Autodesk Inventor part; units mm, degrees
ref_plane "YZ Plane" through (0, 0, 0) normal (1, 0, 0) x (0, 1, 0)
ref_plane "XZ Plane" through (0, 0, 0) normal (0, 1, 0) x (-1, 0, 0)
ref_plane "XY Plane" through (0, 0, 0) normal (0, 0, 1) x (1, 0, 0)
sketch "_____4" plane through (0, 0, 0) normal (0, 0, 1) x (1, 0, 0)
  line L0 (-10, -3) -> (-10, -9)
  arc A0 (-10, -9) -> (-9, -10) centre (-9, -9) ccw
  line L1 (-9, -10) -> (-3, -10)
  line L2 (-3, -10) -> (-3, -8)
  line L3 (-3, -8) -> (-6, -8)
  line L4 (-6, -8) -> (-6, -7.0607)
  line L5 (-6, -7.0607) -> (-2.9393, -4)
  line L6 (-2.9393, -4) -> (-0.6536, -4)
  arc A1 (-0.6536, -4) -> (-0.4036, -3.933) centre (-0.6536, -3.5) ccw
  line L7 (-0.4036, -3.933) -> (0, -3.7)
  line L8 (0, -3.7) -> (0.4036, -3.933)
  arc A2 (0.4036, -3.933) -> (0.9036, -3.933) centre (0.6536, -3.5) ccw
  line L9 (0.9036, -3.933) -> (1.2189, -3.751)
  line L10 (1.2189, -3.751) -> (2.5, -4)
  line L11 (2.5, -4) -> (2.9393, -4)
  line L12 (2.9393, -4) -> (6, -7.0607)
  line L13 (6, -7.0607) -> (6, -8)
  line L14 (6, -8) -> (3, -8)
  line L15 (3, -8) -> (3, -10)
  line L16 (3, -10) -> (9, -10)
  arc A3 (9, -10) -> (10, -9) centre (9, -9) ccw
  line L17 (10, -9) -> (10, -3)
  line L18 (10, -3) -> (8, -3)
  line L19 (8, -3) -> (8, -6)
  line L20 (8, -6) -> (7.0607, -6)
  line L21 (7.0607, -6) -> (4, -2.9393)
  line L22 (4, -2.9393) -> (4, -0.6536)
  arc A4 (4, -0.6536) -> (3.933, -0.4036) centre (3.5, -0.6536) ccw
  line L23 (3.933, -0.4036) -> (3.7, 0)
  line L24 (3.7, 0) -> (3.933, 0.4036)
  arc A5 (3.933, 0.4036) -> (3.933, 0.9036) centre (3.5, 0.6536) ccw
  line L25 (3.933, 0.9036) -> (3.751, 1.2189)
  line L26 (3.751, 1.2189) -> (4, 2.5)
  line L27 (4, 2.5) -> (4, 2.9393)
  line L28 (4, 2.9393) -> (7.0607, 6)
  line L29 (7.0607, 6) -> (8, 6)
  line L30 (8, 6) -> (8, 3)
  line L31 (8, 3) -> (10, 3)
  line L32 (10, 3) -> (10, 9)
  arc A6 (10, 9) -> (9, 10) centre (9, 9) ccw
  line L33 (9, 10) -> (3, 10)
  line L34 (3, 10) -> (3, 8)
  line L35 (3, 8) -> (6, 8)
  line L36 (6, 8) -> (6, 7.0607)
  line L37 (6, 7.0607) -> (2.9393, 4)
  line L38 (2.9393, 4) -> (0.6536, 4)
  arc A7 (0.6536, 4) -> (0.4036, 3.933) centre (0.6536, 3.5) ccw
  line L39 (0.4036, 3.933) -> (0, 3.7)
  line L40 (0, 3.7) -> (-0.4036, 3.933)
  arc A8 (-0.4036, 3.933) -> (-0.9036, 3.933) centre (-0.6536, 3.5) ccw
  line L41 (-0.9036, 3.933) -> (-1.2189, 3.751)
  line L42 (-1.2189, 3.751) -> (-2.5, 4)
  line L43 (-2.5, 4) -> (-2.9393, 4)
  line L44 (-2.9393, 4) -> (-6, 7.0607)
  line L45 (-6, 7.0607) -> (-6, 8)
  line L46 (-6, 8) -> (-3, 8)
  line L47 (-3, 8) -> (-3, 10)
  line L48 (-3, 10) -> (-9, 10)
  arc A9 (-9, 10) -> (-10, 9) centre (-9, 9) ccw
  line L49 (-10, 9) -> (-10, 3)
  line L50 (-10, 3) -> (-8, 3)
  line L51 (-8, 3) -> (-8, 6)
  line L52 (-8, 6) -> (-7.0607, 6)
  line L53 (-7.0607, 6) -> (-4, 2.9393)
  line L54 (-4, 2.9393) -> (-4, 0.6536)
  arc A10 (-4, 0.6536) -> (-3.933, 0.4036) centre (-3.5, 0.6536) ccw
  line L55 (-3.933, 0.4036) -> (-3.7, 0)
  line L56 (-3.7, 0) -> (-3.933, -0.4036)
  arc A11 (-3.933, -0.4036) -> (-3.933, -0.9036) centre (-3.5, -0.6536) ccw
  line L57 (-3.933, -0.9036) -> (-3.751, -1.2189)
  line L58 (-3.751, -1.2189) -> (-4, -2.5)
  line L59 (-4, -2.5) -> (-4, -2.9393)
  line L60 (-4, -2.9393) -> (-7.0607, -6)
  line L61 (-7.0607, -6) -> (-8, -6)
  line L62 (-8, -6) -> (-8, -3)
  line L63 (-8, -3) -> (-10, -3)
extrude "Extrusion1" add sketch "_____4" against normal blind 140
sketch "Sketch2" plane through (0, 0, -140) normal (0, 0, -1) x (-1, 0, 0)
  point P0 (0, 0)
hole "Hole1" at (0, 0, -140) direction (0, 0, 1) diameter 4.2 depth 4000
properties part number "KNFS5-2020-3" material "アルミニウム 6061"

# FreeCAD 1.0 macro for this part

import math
import FreeCAD as App
import Part
import Sketcher
Q = App.Units.Quantity

doc = App.newDocument("Part")
body = doc.addObject("PartDesign::Body", "Body")

# Sketch on XY plane
sketch1 = body.newObject("Sketcher::SketchObject", "Sketch")
sketch1.AttachmentSupport = (doc.getObject("XY_Plane"), [""])
sketch1.MapMode = "FlatFace"
sketch1.addGeometry([
    Part.LineSegment(App.Vector(-8, -3, 0), App.Vector(-10, -3, 0)),  # 0
    Part.LineSegment(App.Vector(-10, -3, 0), App.Vector(-10, -9, 0)),  # 1
    Part.ArcOfCircle(Part.Circle(App.Vector(-9, -9, 0), App.Vector(0, 0, 1), 1), math.radians(180), math.radians(270)),  # 2
    Part.LineSegment(App.Vector(-9, -10, 0), App.Vector(-3, -10, 0)),  # 3
    Part.LineSegment(App.Vector(-3, -10, 0), App.Vector(-3, -8, 0)),  # 4
    Part.LineSegment(App.Vector(-3, -8, 0), App.Vector(-6, -8, 0)),  # 5
    Part.LineSegment(App.Vector(-6, -8, 0), App.Vector(-6, -7.06, 0)),  # 6
    Part.LineSegment(App.Vector(-6, -7.06, 0), App.Vector(-2.94, -4, 0)),  # 7
    Part.LineSegment(App.Vector(-2.94, -4, 0), App.Vector(-0.65, -4, 0)),  # 8
    Part.ArcOfCircle(Part.Circle(App.Vector(-0.65, -3.5, 0), App.Vector(0, 0, 1), 0.5), math.radians(-90), math.radians(-60)),  # 9
    Part.LineSegment(App.Vector(-0.4, -3.93, 0), App.Vector(0, -3.7, 0)),  # 10
    Part.LineSegment(App.Vector(0, -3.7, 0), App.Vector(0.4, -3.93, 0)),  # 11
    Part.ArcOfCircle(Part.Circle(App.Vector(0.65, -3.5, 0), App.Vector(0, 0, 1), 0.5), math.radians(-120), math.radians(-60)),  # 12
    Part.LineSegment(App.Vector(0.9, -3.93, 0), App.Vector(1.22, -3.75, 0)),  # 13
    Part.LineSegment(App.Vector(1.22, -3.75, 0), App.Vector(2.5, -4, 0)),  # 14
    Part.LineSegment(App.Vector(2.5, -4, 0), App.Vector(2.94, -4, 0)),  # 15
    Part.LineSegment(App.Vector(2.94, -4, 0), App.Vector(6, -7.06, 0)),  # 16
    Part.LineSegment(App.Vector(6, -7.06, 0), App.Vector(6, -8, 0)),  # 17
    Part.LineSegment(App.Vector(6, -8, 0), App.Vector(3, -8, 0)),  # 18
    Part.LineSegment(App.Vector(3, -8, 0), App.Vector(3, -10, 0)),  # 19
    Part.LineSegment(App.Vector(3, -10, 0), App.Vector(9, -10, 0)),  # 20
    Part.ArcOfCircle(Part.Circle(App.Vector(9, -9, 0), App.Vector(0, 0, 1), 1), math.radians(-90), math.radians(0)),  # 21
    Part.LineSegment(App.Vector(10, -9, 0), App.Vector(10, -3, 0)),  # 22
    Part.LineSegment(App.Vector(10, -3, 0), App.Vector(8, -3, 0)),  # 23
    Part.LineSegment(App.Vector(8, -3, 0), App.Vector(8, -6, 0)),  # 24
    Part.LineSegment(App.Vector(8, -6, 0), App.Vector(7.06, -6, 0)),  # 25
    Part.LineSegment(App.Vector(7.06, -6, 0), App.Vector(4, -2.94, 0)),  # 26
    Part.LineSegment(App.Vector(4, -2.94, 0), App.Vector(4, -0.65, 0)),  # 27
    Part.ArcOfCircle(Part.Circle(App.Vector(3.5, -0.65, 0), App.Vector(0, 0, 1), 0.5), math.radians(0), math.radians(30)),  # 28
    Part.LineSegment(App.Vector(3.93, -0.4, 0), App.Vector(3.7, 0, 0)),  # 29
    Part.LineSegment(App.Vector(3.7, 0, 0), App.Vector(3.93, 0.4, 0)),  # 30
    Part.ArcOfCircle(Part.Circle(App.Vector(3.5, 0.65, 0), App.Vector(0, 0, 1), 0.5), math.radians(-30), math.radians(30)),  # 31
    Part.LineSegment(App.Vector(3.93, 0.9, 0), App.Vector(3.75, 1.22, 0)),  # 32
    Part.LineSegment(App.Vector(3.75, 1.22, 0), App.Vector(4, 2.5, 0)),  # 33
    Part.LineSegment(App.Vector(4, 2.5, 0), App.Vector(4, 2.94, 0)),  # 34
    Part.LineSegment(App.Vector(4, 2.94, 0), App.Vector(7.06, 6, 0)),  # 35
    Part.LineSegment(App.Vector(7.06, 6, 0), App.Vector(8, 6, 0)),  # 36
    Part.LineSegment(App.Vector(8, 6, 0), App.Vector(8, 3, 0)),  # 37
    Part.LineSegment(App.Vector(8, 3, 0), App.Vector(10, 3, 0)),  # 38
    Part.LineSegment(App.Vector(10, 3, 0), App.Vector(10, 9, 0)),  # 39
    Part.ArcOfCircle(Part.Circle(App.Vector(9, 9, 0), App.Vector(0, 0, 1), 1), math.radians(0), math.radians(90)),  # 40
    Part.LineSegment(App.Vector(9, 10, 0), App.Vector(3, 10, 0)),  # 41
    Part.LineSegment(App.Vector(3, 10, 0), App.Vector(3, 8, 0)),  # 42
    Part.LineSegment(App.Vector(3, 8, 0), App.Vector(6, 8, 0)),  # 43
    Part.LineSegment(App.Vector(6, 8, 0), App.Vector(6, 7.06, 0)),  # 44
    Part.LineSegment(App.Vector(6, 7.06, 0), App.Vector(2.94, 4, 0)),  # 45
    Part.LineSegment(App.Vector(2.94, 4, 0), App.Vector(0.65, 4, 0)),  # 46
    Part.ArcOfCircle(Part.Circle(App.Vector(0.65, 3.5, 0), App.Vector(0, 0, 1), 0.5), math.radians(90), math.radians(120)),  # 47
    Part.LineSegment(App.Vector(0.4, 3.93, 0), App.Vector(0, 3.7, 0)),  # 48
    Part.LineSegment(App.Vector(0, 3.7, 0), App.Vector(-0.4, 3.93, 0)),  # 49
    Part.ArcOfCircle(Part.Circle(App.Vector(-0.65, 3.5, 0), App.Vector(0, 0, 1), 0.5), math.radians(60), math.radians(120)),  # 50
    Part.LineSegment(App.Vector(-0.9, 3.93, 0), App.Vector(-1.22, 3.75, 0)),  # 51
    Part.LineSegment(App.Vector(-1.22, 3.75, 0), App.Vector(-2.5, 4, 0)),  # 52
    Part.LineSegment(App.Vector(-2.5, 4, 0), App.Vector(-2.94, 4, 0)),  # 53
    Part.LineSegment(App.Vector(-2.94, 4, 0), App.Vector(-6, 7.06, 0)),  # 54
    Part.LineSegment(App.Vector(-6, 7.06, 0), App.Vector(-6, 8, 0)),  # 55
    Part.LineSegment(App.Vector(-6, 8, 0), App.Vector(-3, 8, 0)),  # 56
    Part.LineSegment(App.Vector(-3, 8, 0), App.Vector(-3, 10, 0)),  # 57
    Part.LineSegment(App.Vector(-3, 10, 0), App.Vector(-9, 10, 0)),  # 58
    Part.ArcOfCircle(Part.Circle(App.Vector(-9, 9, 0), App.Vector(0, 0, 1), 1), math.radians(90), math.radians(180)),  # 59
    Part.LineSegment(App.Vector(-10, 9, 0), App.Vector(-10, 3, 0)),  # 60
    Part.LineSegment(App.Vector(-10, 3, 0), App.Vector(-8, 3, 0)),  # 61
    Part.LineSegment(App.Vector(-8, 3, 0), App.Vector(-8, 6, 0)),  # 62
    Part.LineSegment(App.Vector(-8, 6, 0), App.Vector(-7.06, 6, 0)),  # 63
    Part.LineSegment(App.Vector(-7.06, 6, 0), App.Vector(-4, 2.94, 0)),  # 64
    Part.LineSegment(App.Vector(-4, 2.94, 0), App.Vector(-4, 0.65, 0)),  # 65
    Part.ArcOfCircle(Part.Circle(App.Vector(-3.5, 0.65, 0), App.Vector(0, 0, 1), 0.5), math.radians(180), math.radians(210)),  # 66
    Part.LineSegment(App.Vector(-3.93, 0.4, 0), App.Vector(-3.7, 0, 0)),  # 67
    Part.LineSegment(App.Vector(-3.7, 0, 0), App.Vector(-3.93, -0.4, 0)),  # 68
    Part.ArcOfCircle(Part.Circle(App.Vector(-3.5, -0.65, 0), App.Vector(0, 0, 1), 0.5), math.radians(150), math.radians(210)),  # 69
    Part.LineSegment(App.Vector(-3.93, -0.9, 0), App.Vector(-3.75, -1.22, 0)),  # 70
    Part.LineSegment(App.Vector(-3.75, -1.22, 0), App.Vector(-4, -2.5, 0)),  # 71
    Part.LineSegment(App.Vector(-4, -2.5, 0), App.Vector(-4, -2.94, 0)),  # 72
    Part.LineSegment(App.Vector(-4, -2.94, 0), App.Vector(-7.06, -6, 0)),  # 73
    Part.LineSegment(App.Vector(-7.06, -6, 0), App.Vector(-8, -6, 0)),  # 74
    Part.LineSegment(App.Vector(-8, -6, 0), App.Vector(-8, -3, 0)),  # 75
], False)
sketch1.addConstraint([
    Sketcher.Constraint("Coincident", 0, 2, 1, 1),
    Sketcher.Constraint("Tangent", 1, 2, 2, 1),
    Sketcher.Constraint("Tangent", 2, 2, 3, 1),
    Sketcher.Constraint("Coincident", 3, 2, 4, 1),
    Sketcher.Constraint("Coincident", 4, 2, 5, 1),
    Sketcher.Constraint("Coincident", 5, 2, 6, 1),
    Sketcher.Constraint("Coincident", 6, 2, 7, 1),
    Sketcher.Constraint("Coincident", 7, 2, 8, 1),
    Sketcher.Constraint("Tangent", 8, 2, 9, 1),
    Sketcher.Constraint("Tangent", 9, 2, 10, 1),
    Sketcher.Constraint("Coincident", 10, 2, 11, 1),
    Sketcher.Constraint("Tangent", 11, 2, 12, 1),
    Sketcher.Constraint("Tangent", 12, 2, 13, 1),
    Sketcher.Constraint("Coincident", 13, 2, 14, 1),
    Sketcher.Constraint("Coincident", 14, 2, 15, 1),
    Sketcher.Constraint("Coincident", 15, 2, 16, 1),
    Sketcher.Constraint("Coincident", 16, 2, 17, 1),
    Sketcher.Constraint("Coincident", 17, 2, 18, 1),
    Sketcher.Constraint("Coincident", 18, 2, 19, 1),
    Sketcher.Constraint("Coincident", 19, 2, 20, 1),
    Sketcher.Constraint("Tangent", 20, 2, 21, 1),
    Sketcher.Constraint("Tangent", 21, 2, 22, 1),
    Sketcher.Constraint("Coincident", 22, 2, 23, 1),
    Sketcher.Constraint("Coincident", 23, 2, 24, 1),
    Sketcher.Constraint("Coincident", 24, 2, 25, 1),
    Sketcher.Constraint("Coincident", 25, 2, 26, 1),
    Sketcher.Constraint("Coincident", 26, 2, 27, 1),
    Sketcher.Constraint("Tangent", 27, 2, 28, 1),
    Sketcher.Constraint("Tangent", 28, 2, 29, 1),
    Sketcher.Constraint("Coincident", 29, 2, 30, 1),
    Sketcher.Constraint("Tangent", 30, 2, 31, 1),
    Sketcher.Constraint("Tangent", 31, 2, 32, 1),
    Sketcher.Constraint("Coincident", 32, 2, 33, 1),
    Sketcher.Constraint("Coincident", 33, 2, 34, 1),
    Sketcher.Constraint("Coincident", 34, 2, 35, 1),
    Sketcher.Constraint("Coincident", 35, 2, 36, 1),
    Sketcher.Constraint("Coincident", 36, 2, 37, 1),
    Sketcher.Constraint("Coincident", 37, 2, 38, 1),
    Sketcher.Constraint("Coincident", 38, 2, 39, 1),
    Sketcher.Constraint("Tangent", 39, 2, 40, 1),
    Sketcher.Constraint("Tangent", 40, 2, 41, 1),
    Sketcher.Constraint("Coincident", 41, 2, 42, 1),
    Sketcher.Constraint("Coincident", 42, 2, 43, 1),
    Sketcher.Constraint("Coincident", 43, 2, 44, 1),
    Sketcher.Constraint("Coincident", 44, 2, 45, 1),
    Sketcher.Constraint("Coincident", 45, 2, 46, 1),
    Sketcher.Constraint("Tangent", 46, 2, 47, 1),
    Sketcher.Constraint("Tangent", 47, 2, 48, 1),
    Sketcher.Constraint("Coincident", 48, 2, 49, 1),
    Sketcher.Constraint("Tangent", 49, 2, 50, 1),
    Sketcher.Constraint("Tangent", 50, 2, 51, 1),
    Sketcher.Constraint("Coincident", 51, 2, 52, 1),
    Sketcher.Constraint("Coincident", 52, 2, 53, 1),
    Sketcher.Constraint("Coincident", 53, 2, 54, 1),
    Sketcher.Constraint("Coincident", 54, 2, 55, 1),
    Sketcher.Constraint("Coincident", 55, 2, 56, 1),
    Sketcher.Constraint("Coincident", 56, 2, 57, 1),
    Sketcher.Constraint("Coincident", 57, 2, 58, 1),
    Sketcher.Constraint("Tangent", 58, 2, 59, 1),
    Sketcher.Constraint("Tangent", 59, 2, 60, 1),
    Sketcher.Constraint("Coincident", 60, 2, 61, 1),
    Sketcher.Constraint("Coincident", 61, 2, 62, 1),
    Sketcher.Constraint("Coincident", 62, 2, 63, 1),
    Sketcher.Constraint("Coincident", 63, 2, 64, 1),
    Sketcher.Constraint("Coincident", 64, 2, 65, 1),
    Sketcher.Constraint("Tangent", 65, 2, 66, 1),
    Sketcher.Constraint("Tangent", 66, 2, 67, 1),
    Sketcher.Constraint("Coincident", 67, 2, 68, 1),
    Sketcher.Constraint("Tangent", 68, 2, 69, 1),
    Sketcher.Constraint("Tangent", 69, 2, 70, 1),
    Sketcher.Constraint("Coincident", 70, 2, 71, 1),
    Sketcher.Constraint("Coincident", 71, 2, 72, 1),
    Sketcher.Constraint("Coincident", 72, 2, 73, 1),
    Sketcher.Constraint("Coincident", 73, 2, 74, 1),
    Sketcher.Constraint("Coincident", 74, 2, 75, 1),
    Sketcher.Constraint("Coincident", 75, 2, 0, 1),
    Sketcher.Constraint("Horizontal", 0),
    Sketcher.Constraint("Vertical", 1),
    Sketcher.Constraint("Horizontal", 3),
    Sketcher.Constraint("Vertical", 4),
    Sketcher.Constraint("Horizontal", 5),
    Sketcher.Constraint("Vertical", 6),
    Sketcher.Constraint("Horizontal", 8),
    Sketcher.Constraint("Horizontal", 15),
    Sketcher.Constraint("Vertical", 17),
    Sketcher.Constraint("Horizontal", 18),
    Sketcher.Constraint("Vertical", 19),
    Sketcher.Constraint("Horizontal", 20),
    Sketcher.Constraint("Vertical", 22),
    Sketcher.Constraint("Horizontal", 23),
    Sketcher.Constraint("Vertical", 24),
    Sketcher.Constraint("Horizontal", 25),
    Sketcher.Constraint("Vertical", 27),
    Sketcher.Constraint("Vertical", 34),
    Sketcher.Constraint("Horizontal", 36),
    Sketcher.Constraint("Vertical", 37),
    Sketcher.Constraint("Horizontal", 38),
    Sketcher.Constraint("Vertical", 39),
    Sketcher.Constraint("Horizontal", 41),
    Sketcher.Constraint("Vertical", 42),
    Sketcher.Constraint("Horizontal", 43),
    Sketcher.Constraint("Vertical", 44),
    Sketcher.Constraint("Horizontal", 46),
    Sketcher.Constraint("Horizontal", 53),
    Sketcher.Constraint("Vertical", 55),
    Sketcher.Constraint("Horizontal", 56),
    Sketcher.Constraint("Vertical", 57),
    Sketcher.Constraint("Horizontal", 58),
    Sketcher.Constraint("Vertical", 60),
    Sketcher.Constraint("Horizontal", 61),
    Sketcher.Constraint("Vertical", 62),
    Sketcher.Constraint("Horizontal", 63),
    Sketcher.Constraint("Vertical", 65),
    Sketcher.Constraint("Vertical", 72),
    Sketcher.Constraint("Horizontal", 74),
    Sketcher.Constraint("Vertical", 75),
    Sketcher.Constraint("Equal", 9, 12),
    Sketcher.Constraint("Equal", 2, 21),
    Sketcher.Constraint("Equal", 12, 28),
    Sketcher.Constraint("Equal", 28, 31),
    Sketcher.Constraint("Equal", 21, 40),
    Sketcher.Constraint("Equal", 31, 47),
    Sketcher.Constraint("Equal", 47, 50),
    Sketcher.Constraint("Equal", 40, 59),
    Sketcher.Constraint("Equal", 50, 66),
    Sketcher.Constraint("Equal", 66, 69),
    Sketcher.Constraint("Symmetric", 2, 3, 40, 3, -1, 1),
    Sketcher.Constraint("Symmetric", 9, 3, 47, 3, -1, 1),
    Sketcher.Constraint("Symmetric", 12, 3, 50, 3, -1, 1),
    Sketcher.Constraint("Symmetric", 21, 3, 59, 3, -1, 1),
    Sketcher.Constraint("Symmetric", 28, 3, 66, 3, -1, 1),
    Sketcher.Constraint("Symmetric", 31, 3, 69, 3, -1, 1),
    Sketcher.Constraint("Symmetric", 4, 2, 42, 2, -1, 1),
    Sketcher.Constraint("Symmetric", 6, 2, 44, 2, -1, 1),
    Sketcher.Constraint("Symmetric", 10, 2, 48, 2, -1, 1),
    Sketcher.Constraint("Symmetric", 13, 2, 51, 2, -1, 1),
    Sketcher.Constraint("Symmetric", 14, 2, 52, 2, -1, 1),
    Sketcher.Constraint("Symmetric", 16, 2, 54, 2, -1, 1),
    Sketcher.Constraint("Symmetric", 18, 2, 56, 2, -1, 1),
    Sketcher.Constraint("Symmetric", 23, 2, 61, 2, -1, 1),
    Sketcher.Constraint("Symmetric", 25, 2, 63, 2, -1, 1),
    Sketcher.Constraint("Symmetric", 29, 2, 67, 2, -1, 1),
    Sketcher.Constraint("Symmetric", 32, 2, 70, 2, -1, 1),
    Sketcher.Constraint("Symmetric", 33, 2, 71, 2, -1, 1),
    Sketcher.Constraint("Symmetric", 35, 2, 73, 2, -1, 1),
    Sketcher.Constraint("Symmetric", 37, 2, 75, 2, -1, 1),
    Sketcher.Constraint("Symmetric", 9, 3, 12, 3, -2),
    Sketcher.Constraint("Symmetric", 2, 3, 21, 3, -2),
    Sketcher.Constraint("Symmetric", 31, 3, 66, 3, -2),
    Sketcher.Constraint("Symmetric", 7, 2, 15, 2, -2),
    Sketcher.Constraint("Symmetric", 6, 2, 16, 2, -2),
    Sketcher.Constraint("Symmetric", 4, 2, 18, 2, -2),
    Sketcher.Constraint("Symmetric", 37, 2, 61, 2, -2),
    Sketcher.Constraint("Symmetric", 35, 2, 63, 2, -2),
    Sketcher.Constraint("Symmetric", 34, 2, 64, 2, -2),
    Sketcher.Constraint("PointOnObject", 10, 2, -2),
    Sketcher.Constraint("PointOnObject", 29, 2, -1),
    Sketcher.Constraint("Parallel", 10, 13),
    Sketcher.Constraint("Perpendicular", 7, 16),
    Sketcher.Constraint("Parallel", 16, 26),
    Sketcher.Constraint("Perpendicular", 13, 29),
    Sketcher.Constraint("Parallel", 29, 32),
    Sketcher.Constraint("Perpendicular", 14, 33),
    Sketcher.Constraint("Perpendicular", 26, 35),
    Sketcher.Constraint("Parallel", 35, 45),
    Sketcher.Constraint("Perpendicular", 45, 54),
    Sketcher.Constraint("Perpendicular", 64, 73),
    Sketcher.Constraint("Equal", 58, 1),
    Sketcher.Constraint("Equal", 61, 4),
    Sketcher.Constraint("Equal", 74, 6),
    Sketcher.Constraint("Equal", 56, 24),
    Sketcher.Constraint("Equal", 46, 27),
    Sketcher.Constraint("Equal", 53, 34),
    Sketcher.Constraint("Equal", 16, 26),
    Sketcher.Constraint("Equal", 11, 29),
    Sketcher.Constraint("Radius", 2, Q("1 mm")),
    Sketcher.Constraint("Radius", 9, Q("0.5 mm")),
    Sketcher.Constraint("DistanceX", 0, 2, 0, 1, Q("2 mm")),
    Sketcher.Constraint("DistanceX", 3, 1, 3, 2, Q("6 mm")),
    Sketcher.Constraint("DistanceX", 5, 2, 5, 1, Q("3 mm")),
    Sketcher.Constraint("Angle", 14, Q("-10.999 deg")),
    Sketcher.Constraint("DistanceX", 2, 3, -1, 1, Q("9 mm")),
    Sketcher.Constraint("DistanceY", 7, 2, -1, 1, Q("4 mm")),
    Sketcher.Constraint("DistanceY", 10, 2, -1, 1, Q("3.7 mm")),
    Sketcher.Constraint("DistanceX", -1, 1, 14, 2, Q("2.5 mm")),
    Sketcher.Constraint("Distance", 10, Q("0.466 mm")),
    Sketcher.Constraint("DistanceX", 8, 1, 8, 2, Q("2.2857 mm")),
])
pad1 = body.newObject("PartDesign::Pad", "Pad")
pad1.Profile = sketch1
pad1.Length = 140
pad1.Reversed = True

# Sketch on XY plane
sketch2 = body.newObject("Sketcher::SketchObject", "Sketch001")
sketch2.AttachmentSupport = (doc.getObject("XY_Plane"), [""])
sketch2.MapMode = "FlatFace"
sketch2.AttachmentOffset = App.Placement(App.Vector(0, 0, -140), App.Rotation())
sketch2.addGeometry(Part.Circle(App.Vector(0, 0, 0), App.Vector(0, 0, 1), 2.1), False)
sketch2.addConstraint([
    Sketcher.Constraint("Coincident", 0, 3, -1, 1),
    Sketcher.Constraint("Diameter", 0, Q("4.2 mm")),
])
doc.recompute()
hole = body.newObject("PartDesign::Hole", "Hole")
hole.Profile = sketch2
hole.ThreadType = "None"
hole.Diameter = 4.2
hole.DepthType = "Dimension"
hole.Depth = 4000
hole.DrillPoint = "Flat"
hole.Reversed = True

doc.recompute()
